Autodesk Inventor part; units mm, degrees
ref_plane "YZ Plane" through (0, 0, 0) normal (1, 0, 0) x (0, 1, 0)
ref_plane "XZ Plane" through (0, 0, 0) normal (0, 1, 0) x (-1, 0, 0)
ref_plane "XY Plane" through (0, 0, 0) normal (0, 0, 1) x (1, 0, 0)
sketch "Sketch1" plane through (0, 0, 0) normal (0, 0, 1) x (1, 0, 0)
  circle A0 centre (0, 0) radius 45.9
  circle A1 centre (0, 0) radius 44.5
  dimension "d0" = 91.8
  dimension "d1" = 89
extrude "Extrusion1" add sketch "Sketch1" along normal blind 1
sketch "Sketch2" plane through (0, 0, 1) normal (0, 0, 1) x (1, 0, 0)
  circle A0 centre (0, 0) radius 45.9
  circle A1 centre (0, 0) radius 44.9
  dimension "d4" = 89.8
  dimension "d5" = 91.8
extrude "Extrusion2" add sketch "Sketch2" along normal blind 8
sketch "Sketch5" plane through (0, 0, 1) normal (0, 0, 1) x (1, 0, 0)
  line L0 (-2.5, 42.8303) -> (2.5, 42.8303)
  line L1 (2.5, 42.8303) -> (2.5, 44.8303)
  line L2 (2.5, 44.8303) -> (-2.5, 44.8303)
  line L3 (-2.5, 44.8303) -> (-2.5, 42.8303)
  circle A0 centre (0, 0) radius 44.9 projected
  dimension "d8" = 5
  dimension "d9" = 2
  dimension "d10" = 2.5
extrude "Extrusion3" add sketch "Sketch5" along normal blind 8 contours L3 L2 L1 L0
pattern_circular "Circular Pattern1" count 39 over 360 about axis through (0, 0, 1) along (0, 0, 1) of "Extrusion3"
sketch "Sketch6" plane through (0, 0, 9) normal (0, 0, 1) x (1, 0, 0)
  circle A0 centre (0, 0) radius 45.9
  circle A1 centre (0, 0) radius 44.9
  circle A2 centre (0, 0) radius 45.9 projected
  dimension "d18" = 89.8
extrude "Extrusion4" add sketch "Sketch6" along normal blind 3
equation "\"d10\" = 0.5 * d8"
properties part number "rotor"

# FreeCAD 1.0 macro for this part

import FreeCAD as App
import Part
import Sketcher
Q = App.Units.Quantity


def add_polygon(sketch, points):
    """Adds a closed chain of lines whose ends are joined by coincident constraints."""
    first, n = sketch.GeometryCount, len(points)
    for a, b in zip(points, points[1:] + points[:1]):
        sketch.addGeometry(Part.LineSegment(App.Vector(*a, 0), App.Vector(*b, 0)), False)
    for i in range(n):
        sketch.addConstraint(Sketcher.Constraint("Coincident", first + i, 2, first + (i + 1) % n, 1))

doc = App.newDocument("Part")
body = doc.addObject("PartDesign::Body", "Body")

# Sketch on XY plane
sketch1 = body.newObject("Sketcher::SketchObject", "Sketch")
sketch1.AttachmentSupport = (doc.getObject("XY_Plane"), [""])
sketch1.MapMode = "FlatFace"
sketch1.addGeometry([
    Part.Circle(App.Vector(0, 0, 0), App.Vector(0, 0, 1), 46),
    Part.Circle(App.Vector(0, 0, 0), App.Vector(0, 0, 1), 44),
], False)
sketch1.addConstraint([
    Sketcher.Constraint("Coincident", 0, 3, -1, 1),
    Sketcher.Constraint("Coincident", 1, 3, -1, 1),
    Sketcher.Constraint("Diameter", 1, Q("89 mm")),
    Sketcher.Constraint("Diameter", 0, Q("91.8 mm")),
])
pad1 = body.newObject("PartDesign::Pad", "Pad")
pad1.Profile = sketch1
pad1.Length = 1

# Sketch on XY plane
sketch2 = body.newObject("Sketcher::SketchObject", "Sketch001")
sketch2.AttachmentSupport = (doc.getObject("XY_Plane"), [""])
sketch2.MapMode = "FlatFace"
sketch2.AttachmentOffset = App.Placement(App.Vector(0, 0, 1), App.Rotation())
sketch2.addGeometry([
    Part.Circle(App.Vector(0, 0, 0), App.Vector(0, 0, 1), 46),
    Part.Circle(App.Vector(0, 0, 0), App.Vector(0, 0, 1), 45),
], False)
sketch2.addConstraint([
    Sketcher.Constraint("Coincident", 0, 3, -1, 1),
    Sketcher.Constraint("Coincident", 1, 3, -1, 1),
    Sketcher.Constraint("Diameter", 0, Q("91.8 mm")),
    Sketcher.Constraint("Diameter", 1, Q("89.8 mm")),
])
pad2 = body.newObject("PartDesign::Pad", "Pad001")
pad2.Profile = sketch2
pad2.Length = 8

# Sketch on XY plane
sketch3 = body.newObject("Sketcher::SketchObject", "Sketch002")
sketch3.AttachmentSupport = (doc.getObject("XY_Plane"), [""])
sketch3.MapMode = "FlatFace"
sketch3.AttachmentOffset = App.Placement(App.Vector(0, 0, 1), App.Rotation())
add_polygon(sketch3, [(-2.5, 44.8), (-2.5, 42.8), (2.5, 42.8), (2.5, 44.8)])  # lines 0-3
sketch3.addConstraint([
    Sketcher.Constraint("Vertical", 0),
    Sketcher.Constraint("Horizontal", 1),
    Sketcher.Constraint("Vertical", 2),
    Sketcher.Constraint("Horizontal", 3),
    Sketcher.Constraint("DistanceX", 1, 1, 1, 2, Q("5 mm")),
    Sketcher.Constraint("DistanceY", 0, 2, 0, 1, Q("2 mm")),
    Sketcher.Constraint("DistanceX", 0, 2, -1, 1, Q("2.5 mm")),
    Sketcher.Constraint("DistanceY", -1, 1, 0, 2, Q("42.8303 mm")),
])
pad3 = body.newObject("PartDesign::Pad", "Pad002")
pad3.Profile = sketch3
pad3.Length = 8
doc.recompute()

polarpattern = body.newObject("PartDesign::PolarPattern", "PolarPattern")
polarpattern.Originals = [pad3]
polarpattern.Axis = (doc.getObject("Z_Axis"), [""])
polarpattern.Angle = 360
polarpattern.Occurrences = 39
body.Tip = polarpattern

# Sketch on XY plane
sketch4 = body.newObject("Sketcher::SketchObject", "Sketch003")
sketch4.AttachmentSupport = (doc.getObject("XY_Plane"), [""])
sketch4.MapMode = "FlatFace"
sketch4.AttachmentOffset = App.Placement(App.Vector(0, 0, 9), App.Rotation())
sketch4.addGeometry([
    Part.Circle(App.Vector(0, 0, 0), App.Vector(0, 0, 1), 46),
    Part.Circle(App.Vector(0, 0, 0), App.Vector(0, 0, 1), 45),
], False)
sketch4.addConstraint([
    Sketcher.Constraint("Coincident", 0, 3, -1, 1),
    Sketcher.Constraint("Coincident", 1, 3, -1, 1),
    Sketcher.Constraint("Diameter", 1, Q("89.8 mm")),
    Sketcher.Constraint("Diameter", 0, Q("91.8 mm")),
])
pad4 = body.newObject("PartDesign::Pad", "Pad003")
pad4.Profile = sketch4
pad4.Length = 3

doc.recompute()
